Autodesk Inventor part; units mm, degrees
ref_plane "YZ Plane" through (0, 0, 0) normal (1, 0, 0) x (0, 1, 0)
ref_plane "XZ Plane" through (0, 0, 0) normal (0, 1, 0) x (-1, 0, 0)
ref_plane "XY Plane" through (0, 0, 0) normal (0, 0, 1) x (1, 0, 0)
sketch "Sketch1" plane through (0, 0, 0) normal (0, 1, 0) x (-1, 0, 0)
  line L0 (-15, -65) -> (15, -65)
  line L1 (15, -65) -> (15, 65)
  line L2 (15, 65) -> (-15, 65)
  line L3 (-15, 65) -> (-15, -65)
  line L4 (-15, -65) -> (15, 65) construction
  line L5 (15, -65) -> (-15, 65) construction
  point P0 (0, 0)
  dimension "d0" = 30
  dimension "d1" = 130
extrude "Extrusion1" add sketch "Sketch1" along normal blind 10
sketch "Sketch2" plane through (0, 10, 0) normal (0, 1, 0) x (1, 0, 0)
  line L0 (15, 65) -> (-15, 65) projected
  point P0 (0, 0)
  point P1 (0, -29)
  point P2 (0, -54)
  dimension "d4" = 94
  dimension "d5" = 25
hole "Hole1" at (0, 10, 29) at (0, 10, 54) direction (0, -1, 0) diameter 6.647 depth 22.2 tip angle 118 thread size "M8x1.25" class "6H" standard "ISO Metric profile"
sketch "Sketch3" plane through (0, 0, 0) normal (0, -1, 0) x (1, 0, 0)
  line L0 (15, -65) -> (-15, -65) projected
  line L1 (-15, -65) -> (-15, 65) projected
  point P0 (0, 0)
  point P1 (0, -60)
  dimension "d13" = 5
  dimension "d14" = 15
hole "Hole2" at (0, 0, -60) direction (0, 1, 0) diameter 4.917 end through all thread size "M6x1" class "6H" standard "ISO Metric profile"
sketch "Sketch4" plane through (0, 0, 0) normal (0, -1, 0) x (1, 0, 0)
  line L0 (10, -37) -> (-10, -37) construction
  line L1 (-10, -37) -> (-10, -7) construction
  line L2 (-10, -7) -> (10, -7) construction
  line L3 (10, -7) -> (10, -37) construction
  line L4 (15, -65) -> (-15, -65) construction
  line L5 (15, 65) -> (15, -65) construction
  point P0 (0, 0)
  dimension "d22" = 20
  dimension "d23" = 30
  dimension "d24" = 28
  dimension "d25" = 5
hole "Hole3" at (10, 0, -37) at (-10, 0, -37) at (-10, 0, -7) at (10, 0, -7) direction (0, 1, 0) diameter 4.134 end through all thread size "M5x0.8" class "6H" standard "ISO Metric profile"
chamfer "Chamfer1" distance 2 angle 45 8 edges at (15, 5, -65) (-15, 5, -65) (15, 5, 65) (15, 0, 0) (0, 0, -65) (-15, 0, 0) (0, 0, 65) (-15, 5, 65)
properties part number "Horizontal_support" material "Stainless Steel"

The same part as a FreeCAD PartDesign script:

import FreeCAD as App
import Part
import Sketcher


def edges_at(feature, points):
    """Names of the edges that pass closest to the given points."""
    edges = feature.Shape.Edges
    near = lambda p: min(range(len(edges)), key=lambda i: edges[i].distToShape(Part.Vertex(*p))[0])
    return sorted({f"Edge{near(p) + 1}" for p in points})

doc = App.newDocument("Part")
body = doc.addObject("PartDesign::Body", "Body")

# Sketch on XZ plane
sketch1 = doc.addObject("Sketcher::SketchObject", "Sketch")
body.addObject(sketch1)
sketch1.AttachmentSupport = (doc.XZ_Plane, [""])
sketch1.MapMode = "FlatFace"
sketch1.addGeometry(Part.LineSegment(App.Vector(15, 65, 0), App.Vector(15, -65, 0)), False)
sketch1.addGeometry(Part.LineSegment(App.Vector(15, -65, 0), App.Vector(-15, -65, 0)), False)
sketch1.addGeometry(Part.LineSegment(App.Vector(-15, -65, 0), App.Vector(-15, 65, 0)), False)
sketch1.addGeometry(Part.LineSegment(App.Vector(-15, 65, 0), App.Vector(15, 65, 0)), False)
sketch1.addConstraint(Sketcher.Constraint("Coincident", 0, 2, 1, 1))
sketch1.addConstraint(Sketcher.Constraint("Coincident", 1, 2, 2, 1))
sketch1.addConstraint(Sketcher.Constraint("Coincident", 2, 2, 3, 1))
sketch1.addConstraint(Sketcher.Constraint("Coincident", 3, 2, 0, 1))
sketch1.addConstraint(Sketcher.Constraint("Vertical", 0))
sketch1.addConstraint(Sketcher.Constraint("Horizontal", 1))
sketch1.addConstraint(Sketcher.Constraint("Vertical", 2))
sketch1.addConstraint(Sketcher.Constraint("Horizontal", 3))
sketch1.addConstraint(Sketcher.Constraint("Symmetric", 0, 2, 2, 2, -1, 1))
sketch1.addConstraint(Sketcher.Constraint("DistanceX", 1, 2, 1, 1, 30.0))
sketch1.addConstraint(Sketcher.Constraint("DistanceY", 0, 2, 0, 1, 130.0))
pad1 = doc.addObject("PartDesign::Pad", "Pad")
body.addObject(pad1)
pad1.Profile = sketch1
pad1.Length = 10
pad1.Reversed = True

# Sketch on XZ plane
sketch2 = doc.addObject("Sketcher::SketchObject", "Sketch001")
body.addObject(sketch2)
sketch2.AttachmentSupport = (doc.XZ_Plane, [""])
sketch2.MapMode = "FlatFace"
sketch2.AttachmentOffset = App.Placement(App.Vector(0, 0, -10), App.Rotation())
sketch2.addGeometry(Part.Circle(App.Vector(0, 29, 0), App.Vector(0, 0, 1), 3.3235), False)
sketch2.addGeometry(Part.Circle(App.Vector(0, 54, 0), App.Vector(0, 0, 1), 3.3235), False)
sketch2.addConstraint(Sketcher.Constraint("Equal", 0, 1))
sketch2.addConstraint(Sketcher.Constraint("PointOnObject", 0, 3, -2))
sketch2.addConstraint(Sketcher.Constraint("PointOnObject", 1, 3, -2))
sketch2.addConstraint(Sketcher.Constraint("Diameter", 0, 6.647))
sketch2.addConstraint(Sketcher.Constraint("DistanceY", -1, 1, 0, 3, 29.0))
sketch2.addConstraint(Sketcher.Constraint("DistanceY", -1, 1, 1, 3, 54.0))
doc.recompute()
hole = doc.addObject("PartDesign::Hole", "Hole")
body.addObject(hole)
hole.Profile = sketch2
hole.ThreadType = "None"
hole.Diameter = 6.647
hole.DepthType = "Dimension"
hole.Depth = 22.2
hole.DrillPoint = "Angled"
hole.DrillPointAngle = 118
hole.Reversed = True

# Sketch on XZ plane
sketch3 = doc.addObject("Sketcher::SketchObject", "Sketch002")
body.addObject(sketch3)
sketch3.AttachmentSupport = (doc.XZ_Plane, [""])
sketch3.MapMode = "FlatFace"
sketch3.addGeometry(Part.Circle(App.Vector(0, -60, 0), App.Vector(0, 0, 1), 2.4585), False)
sketch3.addConstraint(Sketcher.Constraint("PointOnObject", 0, 3, -2))
sketch3.addConstraint(Sketcher.Constraint("Diameter", 0, 4.917))
sketch3.addConstraint(Sketcher.Constraint("DistanceY", 0, 3, -1, 1, 60.0))
doc.recompute()
hole2 = doc.addObject("PartDesign::Hole", "Hole001")
body.addObject(hole2)
hole2.Profile = sketch3
hole2.ThreadType = "None"
hole2.Diameter = 4.917
hole2.DepthType = "ThroughAll"

# Sketch on XZ plane
sketch4 = doc.addObject("Sketcher::SketchObject", "Sketch003")
body.addObject(sketch4)
sketch4.AttachmentSupport = (doc.XZ_Plane, [""])
sketch4.MapMode = "FlatFace"
sketch4.addGeometry(Part.Circle(App.Vector(10, -37, 0), App.Vector(0, 0, 1), 2.067), False)
sketch4.addGeometry(Part.Circle(App.Vector(-10, -37, 0), App.Vector(0, 0, 1), 2.067), False)
sketch4.addGeometry(Part.Circle(App.Vector(-10, -7, 0), App.Vector(0, 0, 1), 2.067), False)
sketch4.addGeometry(Part.Circle(App.Vector(10, -7, 0), App.Vector(0, 0, 1), 2.067), False)
sketch4.addConstraint(Sketcher.Constraint("Equal", 0, 1))
sketch4.addConstraint(Sketcher.Constraint("Equal", 1, 2))
sketch4.addConstraint(Sketcher.Constraint("Equal", 2, 3))
sketch4.addConstraint(Sketcher.Constraint("Symmetric", 0, 3, 1, 3, -2))
sketch4.addConstraint(Sketcher.Constraint("Symmetric", 2, 3, 3, 3, -2))
sketch4.addConstraint(Sketcher.Constraint("Vertical", 1, 3, 2, 3))
sketch4.addConstraint(Sketcher.Constraint("Diameter", 0, 4.134))
sketch4.addConstraint(Sketcher.Constraint("DistanceX", -1, 1, 0, 3, 10.0))
sketch4.addConstraint(Sketcher.Constraint("DistanceY", 0, 3, -1, 1, 37.0))
sketch4.addConstraint(Sketcher.Constraint("DistanceY", 2, 3, -1, 1, 7.0))
doc.recompute()
hole3 = doc.addObject("PartDesign::Hole", "Hole002")
body.addObject(hole3)
hole3.Profile = sketch4
hole3.ThreadType = "None"
hole3.Diameter = 4.134
hole3.DepthType = "ThroughAll"
doc.recompute()

chamfer = doc.addObject("PartDesign::Chamfer", "Chamfer")
body.addObject(chamfer)
chamfer.Base = (hole3, edges_at(hole3, [
    (15, 5, -65),
    (-15, 5, -65),
    (15, 5, 65),
    (15, 0, 0),
    (0, 0, -65),
    (-15, 0, 0),
    (0, 0, 65),
    (-15, 5, 65),
]))
chamfer.Size = 2

doc.recompute()
